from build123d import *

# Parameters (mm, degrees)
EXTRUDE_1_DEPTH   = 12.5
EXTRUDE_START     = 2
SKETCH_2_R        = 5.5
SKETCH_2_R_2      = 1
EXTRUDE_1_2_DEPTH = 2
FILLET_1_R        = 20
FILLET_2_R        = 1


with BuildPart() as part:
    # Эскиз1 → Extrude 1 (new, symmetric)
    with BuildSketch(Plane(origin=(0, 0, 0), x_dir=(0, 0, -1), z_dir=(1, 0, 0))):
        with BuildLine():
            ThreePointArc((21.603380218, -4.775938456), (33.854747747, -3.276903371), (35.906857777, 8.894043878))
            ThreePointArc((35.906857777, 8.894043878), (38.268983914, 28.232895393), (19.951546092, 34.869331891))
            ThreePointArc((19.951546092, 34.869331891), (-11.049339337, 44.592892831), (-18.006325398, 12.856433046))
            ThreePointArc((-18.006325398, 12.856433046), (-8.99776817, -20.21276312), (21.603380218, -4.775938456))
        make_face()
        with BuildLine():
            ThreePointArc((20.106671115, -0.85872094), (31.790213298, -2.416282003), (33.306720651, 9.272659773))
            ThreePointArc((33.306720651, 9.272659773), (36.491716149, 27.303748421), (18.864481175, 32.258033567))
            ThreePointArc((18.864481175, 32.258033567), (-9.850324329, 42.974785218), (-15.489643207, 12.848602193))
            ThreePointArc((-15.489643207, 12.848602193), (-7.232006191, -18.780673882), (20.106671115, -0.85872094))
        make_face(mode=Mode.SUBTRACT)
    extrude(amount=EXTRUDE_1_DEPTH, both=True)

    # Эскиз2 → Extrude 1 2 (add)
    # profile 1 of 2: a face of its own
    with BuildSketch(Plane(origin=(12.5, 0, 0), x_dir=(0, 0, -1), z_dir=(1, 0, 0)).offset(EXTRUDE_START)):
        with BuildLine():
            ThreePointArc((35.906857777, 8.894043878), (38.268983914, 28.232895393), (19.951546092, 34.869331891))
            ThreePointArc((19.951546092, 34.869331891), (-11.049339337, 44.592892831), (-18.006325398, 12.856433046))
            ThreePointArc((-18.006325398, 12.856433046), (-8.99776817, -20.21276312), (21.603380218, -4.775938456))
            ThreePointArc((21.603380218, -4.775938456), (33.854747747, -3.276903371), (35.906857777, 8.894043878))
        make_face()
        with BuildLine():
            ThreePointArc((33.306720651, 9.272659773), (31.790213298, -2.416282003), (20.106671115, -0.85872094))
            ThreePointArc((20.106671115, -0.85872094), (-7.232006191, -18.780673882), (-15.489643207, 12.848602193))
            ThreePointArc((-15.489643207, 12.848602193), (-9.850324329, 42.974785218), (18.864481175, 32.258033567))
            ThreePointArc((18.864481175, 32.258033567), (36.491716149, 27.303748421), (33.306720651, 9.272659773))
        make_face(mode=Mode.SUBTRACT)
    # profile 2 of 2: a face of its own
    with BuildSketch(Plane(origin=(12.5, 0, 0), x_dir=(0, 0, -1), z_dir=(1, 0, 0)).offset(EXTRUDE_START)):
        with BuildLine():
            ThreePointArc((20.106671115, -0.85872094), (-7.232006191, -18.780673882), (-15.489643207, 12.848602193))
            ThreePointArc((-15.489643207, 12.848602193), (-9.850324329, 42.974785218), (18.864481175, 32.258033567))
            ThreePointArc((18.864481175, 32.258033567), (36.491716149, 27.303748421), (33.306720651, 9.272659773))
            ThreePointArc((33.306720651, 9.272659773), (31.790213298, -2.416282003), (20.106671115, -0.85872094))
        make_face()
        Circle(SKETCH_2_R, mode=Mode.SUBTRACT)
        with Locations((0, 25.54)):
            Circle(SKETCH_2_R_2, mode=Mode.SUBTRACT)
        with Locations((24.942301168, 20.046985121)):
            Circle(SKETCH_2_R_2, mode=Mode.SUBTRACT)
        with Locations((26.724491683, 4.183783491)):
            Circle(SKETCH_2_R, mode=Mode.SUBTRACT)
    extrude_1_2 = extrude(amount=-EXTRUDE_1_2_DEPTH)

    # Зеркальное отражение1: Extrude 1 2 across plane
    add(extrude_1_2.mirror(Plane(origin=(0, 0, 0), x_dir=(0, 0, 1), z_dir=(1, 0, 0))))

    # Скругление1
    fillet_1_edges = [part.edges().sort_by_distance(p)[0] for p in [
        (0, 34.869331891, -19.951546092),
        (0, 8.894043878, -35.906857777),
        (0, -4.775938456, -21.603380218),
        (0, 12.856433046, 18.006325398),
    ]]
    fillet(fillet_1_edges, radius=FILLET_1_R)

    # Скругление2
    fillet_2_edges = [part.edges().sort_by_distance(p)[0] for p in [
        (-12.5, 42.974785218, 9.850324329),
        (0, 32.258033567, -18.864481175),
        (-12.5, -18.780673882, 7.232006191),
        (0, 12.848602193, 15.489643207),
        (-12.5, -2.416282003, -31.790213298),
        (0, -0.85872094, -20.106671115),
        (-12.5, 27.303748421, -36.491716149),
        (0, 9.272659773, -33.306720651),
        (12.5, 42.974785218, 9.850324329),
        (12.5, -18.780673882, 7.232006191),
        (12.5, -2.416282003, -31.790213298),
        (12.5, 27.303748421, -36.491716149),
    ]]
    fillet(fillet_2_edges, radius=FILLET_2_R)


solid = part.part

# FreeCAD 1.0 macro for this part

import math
import FreeCAD as App
import Part
import Sketcher
Q = App.Units.Quantity


def edges_at(feature, points):
    """Names of the edges that pass closest to the given points."""
    edges = feature.Shape.Edges
    near = lambda p: min(range(len(edges)), key=lambda i: edges[i].distToShape(Part.Vertex(*p))[0])
    return sorted({f"Edge{near(p) + 1}" for p in points})

doc = App.newDocument("Part")
body = doc.addObject("PartDesign::Body", "Body")

sketch1 = body.newObject("Sketcher::SketchObject", "Sketch")
sketch1.AttachmentSupport = (doc.getObject("YZ_Plane"), [""])
sketch1.MapMode = "FlatFace"
sketch1.addGeometry(Part.ArcOfCircle(Part.Circle(App.Vector(4, -27, 0), App.Vector(0, 0, 1), 10), math.radians(150), math.radians(297)), False)
sketch1.addGeometry(Part.ArcOfCircle(Part.Circle(App.Vector(20, -25, 0), App.Vector(0, 0, 1), 16), math.radians(-135), math.radians(19)), False)
sketch1.addGeometry(Part.ArcOfCircle(Part.Circle(App.Vector(26, 0, 0), App.Vector(0, 0, 1), 22), math.radians(-65), math.radians(125)), False)
sketch1.addGeometry(Part.ArcOfCircle(Part.Circle(App.Vector(0, 0, 0), App.Vector(0, 0, 1), 22), math.radians(54), math.radians(258)), False)
sketch1.addGeometry(Part.ArcOfCircle(Part.Circle(App.Vector(4, -27, 0), App.Vector(0, 0, 1), 8), math.radians(127), math.radians(308)), False)
sketch1.addGeometry(Part.ArcOfCircle(Part.Circle(App.Vector(0, 0, 0), App.Vector(0, 0, 1), 20), math.radians(50), math.radians(268)), False)
sketch1.addGeometry(Part.ArcOfCircle(Part.Circle(App.Vector(26, 0, 0), App.Vector(0, 0, 1), 20), math.radians(-70), math.radians(129)), False)
sketch1.addGeometry(Part.ArcOfCircle(Part.Circle(App.Vector(20, -25, 0), App.Vector(0, 0, 1), 14), math.radians(-142), math.radians(26)), False)
sketch1.addConstraint(Sketcher.Constraint("Coincident", 0, 2, 1, 1))
sketch1.addConstraint(Sketcher.Constraint("Coincident", 1, 2, 2, 1))
sketch1.addConstraint(Sketcher.Constraint("Coincident", 2, 2, 3, 1))
sketch1.addConstraint(Sketcher.Constraint("Coincident", 3, 2, 0, 1))
sketch1.addConstraint(Sketcher.Constraint("Coincident", 4, 1, 5, 2))
sketch1.addConstraint(Sketcher.Constraint("Coincident", 5, 1, 6, 2))
sketch1.addConstraint(Sketcher.Constraint("Coincident", 6, 1, 7, 2))
sketch1.addConstraint(Sketcher.Constraint("Coincident", 7, 1, 4, 2))
sketch1.addConstraint(Sketcher.Constraint("Coincident", 3, 3, -1, 1))
sketch1.addConstraint(Sketcher.Constraint("Coincident", 5, 3, -1, 1))
sketch1.addConstraint(Sketcher.Constraint("Coincident", 4, 3, 0, 3))
sketch1.addConstraint(Sketcher.Constraint("Coincident", 6, 3, 2, 3))
sketch1.addConstraint(Sketcher.Constraint("Coincident", 7, 3, 1, 3))
sketch1.addConstraint(Sketcher.Constraint("PointOnObject", 2, 3, -1))
sketch1.addConstraint(Sketcher.Constraint("Radius", 0, Q("10.32 mm")))
sketch1.addConstraint(Sketcher.Constraint("Radius", 1, Q("15.64 mm")))
sketch1.addConstraint(Sketcher.Constraint("Radius", 4, Q("8.32 mm")))
sketch1.addConstraint(Sketcher.Constraint("Radius", 7, Q("13.64 mm")))
sketch1.addConstraint(Sketcher.Constraint("Radius", 2, Q("22.025 mm")))
sketch1.addConstraint(Sketcher.Constraint("Radius", 3, Q("22.125 mm")))
sketch1.addConstraint(Sketcher.Constraint("Radius", 5, Q("20.125 mm")))
sketch1.addConstraint(Sketcher.Constraint("Radius", 6, Q("20.025 mm")))
sketch1.addConstraint(Sketcher.Constraint("DistanceX", -1, 1, 2, 3, Q("25.54 mm")))
sketch1.addConstraint(Sketcher.Constraint("DistanceY", 1, 3, -1, 1, Q("24.942301 mm")))
sketch1.addConstraint(Sketcher.Constraint("DistanceX", 0, 3, 1, 3, Q("15.863202 mm")))
sketch1.addConstraint(Sketcher.Constraint("DistanceY", 0, 3, -1, 1, Q("26.724492 mm")))
sketch1.addConstraint(Sketcher.Constraint("DistanceX", -1, 1, 1, 2, Q("34.869332 mm")))
pad1 = body.newObject("PartDesign::Pad", "Pad")
pad1.Profile = sketch1
pad1.Length = 25
pad1.Midplane = True

sketch2 = body.newObject("Sketcher::SketchObject", "Sketch001")
sketch2.AttachmentSupport = (doc.getObject("YZ_Plane"), [""])
sketch2.MapMode = "FlatFace"
sketch2.AttachmentOffset = App.Placement(App.Vector(0, 0, 14.5), App.Rotation())
sketch2.addGeometry(Part.ArcOfCircle(Part.Circle(App.Vector(20, -24.9, 0), App.Vector(0, 0, 1), 15.6), math.radians(-135), math.radians(19)), False)
sketch2.addGeometry(Part.ArcOfCircle(Part.Circle(App.Vector(25.5, 0, 0), App.Vector(0, 0, 1), 22), math.radians(-65), math.radians(125)), False)
sketch2.addGeometry(Part.ArcOfCircle(Part.Circle(App.Vector(0, 0, 0), App.Vector(0, 0, 1), 22.1), math.radians(54), math.radians(258)), False)
sketch2.addGeometry(Part.ArcOfCircle(Part.Circle(App.Vector(4.2, -26.7, 0), App.Vector(0, 0, 1), 10.3), math.radians(150), math.radians(297)), False)
sketch2.addGeometry(Part.Circle(App.Vector(0, 0, 0), App.Vector(0, 0, 1), 5.5), False)
sketch2.addGeometry(Part.Circle(App.Vector(4.2, -26.7, 0), App.Vector(0, 0, 1), 5.5), False)
sketch2.addGeometry(Part.Circle(App.Vector(20, -24.9, 0), App.Vector(0, 0, 1), 1), False)
sketch2.addGeometry(Part.Circle(App.Vector(25.5, 0, 0), App.Vector(0, 0, 1), 1), False)
sketch2.addConstraint(Sketcher.Constraint("Coincident", 0, 2, 1, 1))
sketch2.addConstraint(Sketcher.Constraint("Coincident", 1, 2, 2, 1))
sketch2.addConstraint(Sketcher.Constraint("Coincident", 2, 2, 3, 1))
sketch2.addConstraint(Sketcher.Constraint("Coincident", 3, 2, 0, 1))
sketch2.addConstraint(Sketcher.Constraint("Coincident", 2, 3, -1, 1))
sketch2.addConstraint(Sketcher.Constraint("Coincident", 4, 3, -1, 1))
sketch2.addConstraint(Sketcher.Constraint("Coincident", 5, 3, 3, 3))
sketch2.addConstraint(Sketcher.Constraint("Coincident", 6, 3, 0, 3))
sketch2.addConstraint(Sketcher.Constraint("Coincident", 7, 3, 1, 3))
sketch2.addConstraint(Sketcher.Constraint("Equal", 4, 5))
sketch2.addConstraint(Sketcher.Constraint("Equal", 6, 7))
sketch2.addConstraint(Sketcher.Constraint("PointOnObject", 1, 3, -1))
sketch2.addConstraint(Sketcher.Constraint("Diameter", 4, Q("11 mm")))
sketch2.addConstraint(Sketcher.Constraint("Diameter", 6, Q("2 mm")))
sketch2.addConstraint(Sketcher.Constraint("Radius", 0, Q("15.64 mm")))
sketch2.addConstraint(Sketcher.Constraint("Radius", 3, Q("10.32 mm")))
sketch2.addConstraint(Sketcher.Constraint("Radius", 1, Q("22.025 mm")))
sketch2.addConstraint(Sketcher.Constraint("Radius", 2, Q("22.125 mm")))
sketch2.addConstraint(Sketcher.Constraint("DistanceX", -1, 1, 1, 3, Q("25.54 mm")))
sketch2.addConstraint(Sketcher.Constraint("DistanceY", 0, 3, -1, 1, Q("24.942301 mm")))
sketch2.addConstraint(Sketcher.Constraint("DistanceX", 3, 3, 0, 3, Q("15.863202 mm")))
sketch2.addConstraint(Sketcher.Constraint("DistanceY", 3, 3, -1, 1, Q("26.724492 mm")))
sketch2.addConstraint(Sketcher.Constraint("DistanceX", -1, 1, 0, 2, Q("34.869332 mm")))
pad2 = body.newObject("PartDesign::Pad", "Pad001")
pad2.Profile = sketch2
pad2.Length = 2
pad2.Reversed = True
doc.recompute()

mirrored = body.newObject("PartDesign::Mirrored", "Mirrored")
mirrored.Originals = [pad2]
mirrored.MirrorPlane = (doc.getObject("YZ_Plane"), [""])
body.Tip = mirrored
doc.recompute()

fillet = body.newObject("PartDesign::Fillet", "Fillet")
fillet.Base = (mirrored, edges_at(mirrored, [
    (0, 34.869, -19.952),
    (0, 8.894, -35.907),
    (0, -4.776, -21.603),
    (0, 12.856, 18.006),
]))
fillet.Radius = 20
doc.recompute()

fillet2 = body.newObject("PartDesign::Fillet", "Fillet001")
fillet2.Base = (fillet, edges_at(fillet, [
    (-12.5, 42.975, 9.85),
    (0, 32.258, -18.864),
    (-12.5, -18.781, 7.232),
    (0, 12.849, 15.49),
    (-12.5, -2.416, -31.79),
    (0, -0.859, -20.107),
    (-12.5, 27.304, -36.492),
    (0, 9.273, -33.307),
    (12.5, 42.975, 9.85),
    (12.5, -18.781, 7.232),
    (12.5, -2.416, -31.79),
    (12.5, 27.304, -36.492),
]))
fillet2.Radius = 1

doc.recompute()
